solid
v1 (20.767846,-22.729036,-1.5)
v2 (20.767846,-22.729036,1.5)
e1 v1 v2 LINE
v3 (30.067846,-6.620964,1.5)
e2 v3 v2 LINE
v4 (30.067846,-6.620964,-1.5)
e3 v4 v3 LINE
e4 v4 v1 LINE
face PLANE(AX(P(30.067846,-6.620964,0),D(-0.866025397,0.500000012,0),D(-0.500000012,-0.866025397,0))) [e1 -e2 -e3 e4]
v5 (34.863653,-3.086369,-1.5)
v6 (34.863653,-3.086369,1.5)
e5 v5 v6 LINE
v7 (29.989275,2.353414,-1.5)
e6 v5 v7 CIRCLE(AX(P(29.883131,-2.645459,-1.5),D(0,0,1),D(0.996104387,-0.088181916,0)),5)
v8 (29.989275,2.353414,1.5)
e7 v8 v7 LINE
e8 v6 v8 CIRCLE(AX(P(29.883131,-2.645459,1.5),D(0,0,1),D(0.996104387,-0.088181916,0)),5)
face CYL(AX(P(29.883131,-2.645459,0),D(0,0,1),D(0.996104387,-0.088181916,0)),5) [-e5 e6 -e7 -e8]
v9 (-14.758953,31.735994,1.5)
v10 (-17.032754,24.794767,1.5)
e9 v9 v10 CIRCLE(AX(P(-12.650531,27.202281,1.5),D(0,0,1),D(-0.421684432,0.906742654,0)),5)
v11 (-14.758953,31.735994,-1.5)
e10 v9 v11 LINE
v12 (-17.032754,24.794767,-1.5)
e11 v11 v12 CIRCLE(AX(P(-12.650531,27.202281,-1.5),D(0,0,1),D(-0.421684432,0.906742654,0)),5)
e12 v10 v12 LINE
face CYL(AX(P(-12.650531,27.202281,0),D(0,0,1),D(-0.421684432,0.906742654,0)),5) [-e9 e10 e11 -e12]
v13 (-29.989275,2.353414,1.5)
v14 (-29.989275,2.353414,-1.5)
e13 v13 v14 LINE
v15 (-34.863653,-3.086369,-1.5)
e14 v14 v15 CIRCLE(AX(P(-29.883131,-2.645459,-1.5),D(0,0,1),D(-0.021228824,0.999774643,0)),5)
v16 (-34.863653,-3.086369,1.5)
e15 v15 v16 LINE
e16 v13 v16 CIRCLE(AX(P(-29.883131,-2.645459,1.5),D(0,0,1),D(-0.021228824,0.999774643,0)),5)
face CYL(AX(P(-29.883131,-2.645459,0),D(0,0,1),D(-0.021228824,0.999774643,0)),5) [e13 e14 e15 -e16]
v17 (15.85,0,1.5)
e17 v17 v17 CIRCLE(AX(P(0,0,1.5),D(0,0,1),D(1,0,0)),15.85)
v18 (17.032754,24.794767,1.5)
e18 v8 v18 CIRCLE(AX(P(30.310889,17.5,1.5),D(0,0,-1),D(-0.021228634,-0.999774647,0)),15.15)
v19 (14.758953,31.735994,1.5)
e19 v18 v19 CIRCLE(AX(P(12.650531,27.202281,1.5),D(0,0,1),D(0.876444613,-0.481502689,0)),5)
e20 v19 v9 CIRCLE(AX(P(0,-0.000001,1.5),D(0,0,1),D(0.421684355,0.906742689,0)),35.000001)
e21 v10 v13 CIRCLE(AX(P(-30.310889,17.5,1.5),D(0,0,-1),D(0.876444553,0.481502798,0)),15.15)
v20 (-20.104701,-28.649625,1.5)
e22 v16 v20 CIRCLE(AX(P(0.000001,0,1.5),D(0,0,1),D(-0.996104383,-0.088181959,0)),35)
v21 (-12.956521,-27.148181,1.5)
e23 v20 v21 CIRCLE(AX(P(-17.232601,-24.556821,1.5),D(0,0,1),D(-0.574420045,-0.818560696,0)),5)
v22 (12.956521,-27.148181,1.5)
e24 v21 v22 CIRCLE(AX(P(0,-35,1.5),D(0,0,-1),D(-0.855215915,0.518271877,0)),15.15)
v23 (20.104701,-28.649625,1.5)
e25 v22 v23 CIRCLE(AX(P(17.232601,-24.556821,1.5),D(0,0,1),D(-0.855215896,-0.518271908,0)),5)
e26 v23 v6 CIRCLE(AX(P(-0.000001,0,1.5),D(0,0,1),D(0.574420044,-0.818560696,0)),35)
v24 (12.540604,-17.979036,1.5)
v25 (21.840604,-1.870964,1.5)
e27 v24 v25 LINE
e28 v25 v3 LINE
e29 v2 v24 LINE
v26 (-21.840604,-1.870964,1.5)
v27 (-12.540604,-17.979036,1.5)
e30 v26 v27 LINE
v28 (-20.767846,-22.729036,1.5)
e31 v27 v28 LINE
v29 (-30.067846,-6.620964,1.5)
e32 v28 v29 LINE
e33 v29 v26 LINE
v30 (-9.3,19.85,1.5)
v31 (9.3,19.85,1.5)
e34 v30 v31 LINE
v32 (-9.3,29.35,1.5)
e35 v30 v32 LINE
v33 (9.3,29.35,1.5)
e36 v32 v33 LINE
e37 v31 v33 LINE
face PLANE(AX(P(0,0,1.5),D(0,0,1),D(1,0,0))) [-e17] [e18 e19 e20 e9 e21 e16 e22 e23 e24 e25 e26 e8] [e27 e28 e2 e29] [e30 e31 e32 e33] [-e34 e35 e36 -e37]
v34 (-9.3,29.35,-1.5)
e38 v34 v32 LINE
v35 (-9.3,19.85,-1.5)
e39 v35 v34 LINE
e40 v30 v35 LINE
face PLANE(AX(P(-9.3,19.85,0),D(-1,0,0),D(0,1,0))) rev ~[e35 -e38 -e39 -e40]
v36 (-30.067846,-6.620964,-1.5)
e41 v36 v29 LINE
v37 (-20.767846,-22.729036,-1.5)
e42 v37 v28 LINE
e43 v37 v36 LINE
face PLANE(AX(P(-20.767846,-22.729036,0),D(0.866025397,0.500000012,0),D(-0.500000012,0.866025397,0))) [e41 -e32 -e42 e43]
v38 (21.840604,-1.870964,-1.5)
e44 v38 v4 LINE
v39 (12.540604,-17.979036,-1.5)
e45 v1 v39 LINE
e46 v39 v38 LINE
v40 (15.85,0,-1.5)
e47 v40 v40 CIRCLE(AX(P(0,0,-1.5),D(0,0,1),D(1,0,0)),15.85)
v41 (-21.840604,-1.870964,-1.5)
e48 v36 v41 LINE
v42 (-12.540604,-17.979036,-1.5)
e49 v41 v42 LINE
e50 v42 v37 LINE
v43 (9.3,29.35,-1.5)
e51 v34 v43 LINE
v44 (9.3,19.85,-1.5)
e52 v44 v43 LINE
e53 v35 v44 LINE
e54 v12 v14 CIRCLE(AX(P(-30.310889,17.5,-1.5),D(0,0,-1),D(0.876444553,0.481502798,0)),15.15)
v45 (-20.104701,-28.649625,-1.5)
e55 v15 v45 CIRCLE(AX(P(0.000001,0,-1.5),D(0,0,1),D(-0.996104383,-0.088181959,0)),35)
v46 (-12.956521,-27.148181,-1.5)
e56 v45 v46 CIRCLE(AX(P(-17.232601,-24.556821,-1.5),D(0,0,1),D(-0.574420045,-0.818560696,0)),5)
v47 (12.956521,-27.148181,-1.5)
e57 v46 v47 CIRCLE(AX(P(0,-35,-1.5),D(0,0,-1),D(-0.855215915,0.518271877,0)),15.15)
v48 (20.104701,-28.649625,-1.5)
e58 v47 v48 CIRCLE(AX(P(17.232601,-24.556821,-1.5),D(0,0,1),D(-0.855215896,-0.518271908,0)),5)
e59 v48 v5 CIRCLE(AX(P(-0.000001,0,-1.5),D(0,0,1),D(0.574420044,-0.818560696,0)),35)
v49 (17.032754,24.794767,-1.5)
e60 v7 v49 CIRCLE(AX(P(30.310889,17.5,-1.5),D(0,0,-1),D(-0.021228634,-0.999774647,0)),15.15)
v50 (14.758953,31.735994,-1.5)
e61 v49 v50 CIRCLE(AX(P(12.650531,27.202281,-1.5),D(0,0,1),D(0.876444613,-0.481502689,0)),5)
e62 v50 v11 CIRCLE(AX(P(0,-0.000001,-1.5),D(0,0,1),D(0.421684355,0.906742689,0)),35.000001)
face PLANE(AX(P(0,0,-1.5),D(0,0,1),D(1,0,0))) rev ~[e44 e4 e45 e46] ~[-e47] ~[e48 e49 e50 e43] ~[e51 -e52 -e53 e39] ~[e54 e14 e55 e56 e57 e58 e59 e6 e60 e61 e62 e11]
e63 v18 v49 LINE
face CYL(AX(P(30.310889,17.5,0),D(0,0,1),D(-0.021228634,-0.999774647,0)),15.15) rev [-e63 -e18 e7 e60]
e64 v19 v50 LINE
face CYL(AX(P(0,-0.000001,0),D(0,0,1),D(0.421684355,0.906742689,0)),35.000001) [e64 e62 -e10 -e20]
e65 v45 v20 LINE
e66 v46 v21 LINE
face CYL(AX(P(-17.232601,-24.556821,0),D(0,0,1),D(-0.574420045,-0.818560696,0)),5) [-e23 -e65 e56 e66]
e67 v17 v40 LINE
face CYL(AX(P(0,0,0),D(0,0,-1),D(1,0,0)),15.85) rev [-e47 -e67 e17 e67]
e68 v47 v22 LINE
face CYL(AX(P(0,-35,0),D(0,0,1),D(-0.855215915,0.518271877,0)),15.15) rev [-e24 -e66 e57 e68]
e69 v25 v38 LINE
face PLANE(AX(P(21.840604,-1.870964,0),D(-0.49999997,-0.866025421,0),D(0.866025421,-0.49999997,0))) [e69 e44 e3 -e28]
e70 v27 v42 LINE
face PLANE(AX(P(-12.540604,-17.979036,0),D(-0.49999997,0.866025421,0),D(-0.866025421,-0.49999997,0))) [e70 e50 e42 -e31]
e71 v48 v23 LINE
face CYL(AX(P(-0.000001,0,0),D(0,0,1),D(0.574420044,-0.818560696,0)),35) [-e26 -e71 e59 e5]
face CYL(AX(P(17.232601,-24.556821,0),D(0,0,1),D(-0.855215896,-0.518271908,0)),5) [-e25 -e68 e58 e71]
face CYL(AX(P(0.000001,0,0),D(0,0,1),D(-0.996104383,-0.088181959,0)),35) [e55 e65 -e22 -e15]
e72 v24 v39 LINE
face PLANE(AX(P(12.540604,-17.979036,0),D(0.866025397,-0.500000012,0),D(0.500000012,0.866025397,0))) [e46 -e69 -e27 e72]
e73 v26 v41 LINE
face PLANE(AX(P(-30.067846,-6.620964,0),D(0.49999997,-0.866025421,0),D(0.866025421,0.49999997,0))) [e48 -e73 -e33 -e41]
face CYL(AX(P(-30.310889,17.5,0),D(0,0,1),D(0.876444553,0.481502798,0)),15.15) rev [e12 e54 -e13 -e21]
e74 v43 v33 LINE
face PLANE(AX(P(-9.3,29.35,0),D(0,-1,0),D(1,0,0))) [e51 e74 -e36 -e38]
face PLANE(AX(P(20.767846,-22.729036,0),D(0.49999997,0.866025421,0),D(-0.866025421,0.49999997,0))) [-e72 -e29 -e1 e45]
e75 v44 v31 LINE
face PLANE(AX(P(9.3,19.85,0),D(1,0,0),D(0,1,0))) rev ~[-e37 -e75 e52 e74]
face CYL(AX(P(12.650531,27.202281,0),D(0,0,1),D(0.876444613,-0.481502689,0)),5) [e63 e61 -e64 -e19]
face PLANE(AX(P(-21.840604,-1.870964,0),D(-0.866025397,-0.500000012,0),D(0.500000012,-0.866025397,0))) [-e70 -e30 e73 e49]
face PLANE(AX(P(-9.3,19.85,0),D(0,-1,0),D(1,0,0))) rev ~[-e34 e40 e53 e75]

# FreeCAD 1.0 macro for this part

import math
import FreeCAD as App
import Part
import Sketcher
from FreeCAD import Vector
Q = App.Units.Quantity


def add_polygon(sketch, points):
    """Adds a closed chain of lines whose ends are joined by coincident constraints."""
    first, n = sketch.GeometryCount, len(points)
    for a, b in zip(points, points[1:] + points[:1]):
        sketch.addGeometry(Part.LineSegment(App.Vector(*a, 0), App.Vector(*b, 0)), False)
    for i in range(n):
        sketch.addConstraint(Sketcher.Constraint("Coincident", first + i, 2, first + (i + 1) % n, 1))

doc = App.newDocument("Part")
body = doc.addObject("PartDesign::Body", "Body")

# Sketch on XY plane
sketch1 = body.newObject("Sketcher::SketchObject", "Sketch")
sketch1.AttachmentSupport = (doc.getObject("XY_Plane"), [""])
sketch1.MapMode = "FlatFace"
sketch1.addGeometry(Part.ArcOfCircle(Part.Circle(Vector(-30, -3, 0), Vector(0, 0, 1), 5), math.radians(91), math.radians(185)), False)  # 0
sketch1.addGeometry(Part.ArcOfCircle(Part.Circle(Vector(0, 0, 0), Vector(0, 0, 1), 35), math.radians(-175), math.radians(-125)), False)  # 1
sketch1.addGeometry(Part.ArcOfCircle(Part.Circle(Vector(-17, -25, 0), Vector(0, 0, 1), 5), math.radians(-125), math.radians(-31)), False)  # 2
sketch1.addGeometry(Part.ArcOfCircle(Part.Circle(Vector(0, -35, 0), Vector(0, 0, 1), 15), math.radians(31), math.radians(149)), False)  # 3
sketch1.addGeometry(Part.ArcOfCircle(Part.Circle(Vector(17, -25, 0), Vector(0, 0, 1), 5), math.radians(-149), math.radians(-55)), False)  # 4
sketch1.addGeometry(Part.ArcOfCircle(Part.Circle(Vector(0, 0, 0), Vector(0, 0, 1), 35), math.radians(-55), math.radians(-5)), False)  # 5
sketch1.addGeometry(Part.ArcOfCircle(Part.Circle(Vector(30, -3, 0), Vector(0, 0, 1), 5), math.radians(-5), math.radians(89)), False)  # 6
sketch1.addGeometry(Part.ArcOfCircle(Part.Circle(Vector(30, 17, 0), Vector(0, 0, 1), 15), math.radians(151), math.radians(269)), False)  # 7
sketch1.addGeometry(Part.ArcOfCircle(Part.Circle(Vector(13, 27, 0), Vector(0, 0, 1), 5), math.radians(-29), math.radians(65)), False)  # 8
sketch1.addGeometry(Part.ArcOfCircle(Part.Circle(Vector(0, 0, 0), Vector(0, 0, 1), 35), math.radians(65), math.radians(115)), False)  # 9
sketch1.addGeometry(Part.ArcOfCircle(Part.Circle(Vector(-13, 27, 0), Vector(0, 0, 1), 5), math.radians(115), math.radians(209)), False)  # 10
sketch1.addGeometry(Part.ArcOfCircle(Part.Circle(Vector(-30, 17, 0), Vector(0, 0, 1), 15), math.radians(-89), math.radians(29)), False)  # 11
add_polygon(sketch1, [(-13, -18), (-21, -23), (-30, -7), (-22, -2)])  # lines 12-15
add_polygon(sketch1, [(22, -2), (30, -7), (21, -23), (13, -18)])  # lines 16-19
sketch1.addGeometry(Part.Circle(Vector(0, 0, 0), Vector(0, 0, 1), 16), False)  # 20
add_polygon(sketch1, [(9, 20), (-9, 20), (-9, 29), (9, 29)])  # lines 21-24
sketch1.addConstraint([
    Sketcher.Constraint("Tangent", 0, 2, 1, 1),
    Sketcher.Constraint("Tangent", 1, 2, 2, 1),
    Sketcher.Constraint("Tangent", 2, 2, 3, 2),
    Sketcher.Constraint("Tangent", 3, 1, 4, 1),
    Sketcher.Constraint("Tangent", 4, 2, 5, 1),
    Sketcher.Constraint("Tangent", 5, 2, 6, 1),
    Sketcher.Constraint("Tangent", 6, 2, 7, 2),
    Sketcher.Constraint("Tangent", 7, 1, 8, 1),
    Sketcher.Constraint("Tangent", 8, 2, 9, 1),
    Sketcher.Constraint("Tangent", 9, 2, 10, 1),
    Sketcher.Constraint("Tangent", 10, 2, 11, 2),
    Sketcher.Constraint("Tangent", 11, 1, 0, 1),
    Sketcher.Constraint("Horizontal", 21),
    Sketcher.Constraint("Vertical", 22),
    Sketcher.Constraint("Horizontal", 23),
    Sketcher.Constraint("Vertical", 24),
    Sketcher.Constraint("Coincident", 1, 3, -1, 1),
    Sketcher.Constraint("Coincident", 5, 3, -1, 1),
    Sketcher.Constraint("Coincident", 9, 3, -1, 1),
    Sketcher.Constraint("Coincident", 20, 3, -1, 1),
    Sketcher.Constraint("Equal", 0, 2),
    Sketcher.Constraint("Equal", 2, 4),
    Sketcher.Constraint("Equal", 1, 5),
    Sketcher.Constraint("Equal", 4, 6),
    Sketcher.Constraint("Equal", 3, 7),
    Sketcher.Constraint("Equal", 6, 8),
    Sketcher.Constraint("Equal", 5, 9),
    Sketcher.Constraint("Equal", 8, 10),
    Sketcher.Constraint("Equal", 7, 11),
    Sketcher.Constraint("Symmetric", 7, 3, 11, 3, -2),
    Sketcher.Constraint("Symmetric", 13, 2, 16, 2, -2),
    Sketcher.Constraint("Symmetric", 12, 2, 17, 2, -2),
    Sketcher.Constraint("Symmetric", 15, 2, 18, 2, -2),
    Sketcher.Constraint("Symmetric", 14, 2, 19, 2, -2),
    Sketcher.Constraint("PointOnObject", 3, 3, -2),
    Sketcher.Constraint("Perpendicular", 12, 13),
    Sketcher.Constraint("Perpendicular", 13, 14),
    Sketcher.Constraint("Perpendicular", 14, 15),
    Sketcher.Constraint("Radius", 0, 5.0),
    Sketcher.Constraint("Radius", 1, 35.0),
    Sketcher.Constraint("Diameter", 20, 31.7),
    Sketcher.Constraint("Angle", 12, Q("-150.000002 deg")),
    Sketcher.Constraint("Radius", 3, 15.15),
    Sketcher.Constraint("DistanceX", 21, 2, 21, 1, 18.6),
    Sketcher.Constraint("DistanceY", 22, 1, 22, 2, 9.5),
    Sketcher.Constraint("DistanceY", 3, 3, -1, 1, 35.0),
    Sketcher.Constraint("Distance", 12, 9.500001),
    Sketcher.Constraint("Distance", 13, 18.6),
    Sketcher.Constraint("DistanceY", -1, 1, 7, 3, 17.5),
    Sketcher.Constraint("DistanceX", 21, 2, -1, 1, 9.3),
    Sketcher.Constraint("DistanceY", -1, 1, 21, 2, 19.85),
    Sketcher.Constraint("DistanceX", 8, 3, 6, 3, 17.2326),
    Sketcher.Constraint("DistanceY", 1, 2, 12, 2, 5.920589),
    Sketcher.Constraint("DistanceX", 13, 2, 11, 1, 0.078571),
])
pad1 = body.newObject("PartDesign::Pad", "Pad")
pad1.Profile = sketch1
pad1.Length = 3
pad1.Midplane = True

doc.recompute()
